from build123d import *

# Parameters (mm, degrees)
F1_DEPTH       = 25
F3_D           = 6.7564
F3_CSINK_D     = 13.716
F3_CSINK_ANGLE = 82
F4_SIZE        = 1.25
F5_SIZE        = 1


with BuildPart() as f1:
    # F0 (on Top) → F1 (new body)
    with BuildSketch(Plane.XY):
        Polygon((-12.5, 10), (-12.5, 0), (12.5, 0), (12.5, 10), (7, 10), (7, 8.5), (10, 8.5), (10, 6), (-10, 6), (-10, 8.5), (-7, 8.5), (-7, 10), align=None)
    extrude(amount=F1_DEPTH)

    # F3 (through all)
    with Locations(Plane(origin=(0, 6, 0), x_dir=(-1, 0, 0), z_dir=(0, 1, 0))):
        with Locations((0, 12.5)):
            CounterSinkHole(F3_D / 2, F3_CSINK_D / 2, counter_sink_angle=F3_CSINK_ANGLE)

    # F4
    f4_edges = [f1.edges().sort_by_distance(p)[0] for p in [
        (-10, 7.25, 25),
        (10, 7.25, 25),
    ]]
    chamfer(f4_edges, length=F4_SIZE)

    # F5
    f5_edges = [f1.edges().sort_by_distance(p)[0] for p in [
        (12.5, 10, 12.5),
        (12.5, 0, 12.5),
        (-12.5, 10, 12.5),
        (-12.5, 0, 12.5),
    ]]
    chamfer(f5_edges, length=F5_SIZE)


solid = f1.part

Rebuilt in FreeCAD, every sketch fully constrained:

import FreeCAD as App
import Part
import Sketcher

V = App.Vector


def edges_at(feature, points):
    """Names of the edges that pass closest to the given points."""
    edges = feature.Shape.Edges
    near = lambda p: min(range(len(edges)), key=lambda i: edges[i].distToShape(Part.Vertex(*p))[0])
    return sorted({f"Edge{near(p) + 1}" for p in points})

doc = App.newDocument("Part")
body = doc.addObject("PartDesign::Body", "Body")

sketch1 = body.newObject("Sketcher::SketchObject", "Sketch")
sketch1.AttachmentSupport = (doc.getObject("XY_Plane"), [""])
sketch1.MapMode = "FlatFace"
sketch1.addGeometry([
    Part.LineSegment(V(-12.5, 10, 0), V(-12.5, 0, 0)),
    Part.LineSegment(V(-12.5, 0, 0), V(12.5, 0, 0)),
    Part.LineSegment(V(12.5, 0, 0), V(12.5, 10, 0)),
    Part.LineSegment(V(12.5, 10, 0), V(7, 10, 0)),
    Part.LineSegment(V(7, 10, 0), V(7, 8.5, 0)),
    Part.LineSegment(V(7, 8.5, 0), V(10, 8.5, 0)),
    Part.LineSegment(V(10, 8.5, 0), V(10, 6, 0)),
    Part.LineSegment(V(10, 6, 0), V(-10, 6, 0)),
    Part.LineSegment(V(-10, 6, 0), V(-10, 8.5, 0)),
    Part.LineSegment(V(-10, 8.5, 0), V(-7, 8.5, 0)),
    Part.LineSegment(V(-7, 8.5, 0), V(-7, 10, 0)),
    Part.LineSegment(V(-7, 10, 0), V(-12.5, 10, 0)),
], False)
sketch1.addConstraint([
    Sketcher.Constraint("Coincident", 0, 2, 1, 1),
    Sketcher.Constraint("Coincident", 1, 2, 2, 1),
    Sketcher.Constraint("Coincident", 2, 2, 3, 1),
    Sketcher.Constraint("Coincident", 3, 2, 4, 1),
    Sketcher.Constraint("Coincident", 4, 2, 5, 1),
    Sketcher.Constraint("Coincident", 5, 2, 6, 1),
    Sketcher.Constraint("Coincident", 6, 2, 7, 1),
    Sketcher.Constraint("Coincident", 7, 2, 8, 1),
    Sketcher.Constraint("Coincident", 8, 2, 9, 1),
    Sketcher.Constraint("Coincident", 9, 2, 10, 1),
    Sketcher.Constraint("Coincident", 10, 2, 11, 1),
    Sketcher.Constraint("Coincident", 11, 2, 0, 1),
    Sketcher.Constraint("Vertical", 0),
    Sketcher.Constraint("Horizontal", 1),
    Sketcher.Constraint("Vertical", 2),
    Sketcher.Constraint("Horizontal", 3),
    Sketcher.Constraint("Vertical", 4),
    Sketcher.Constraint("Horizontal", 5),
    Sketcher.Constraint("Vertical", 6),
    Sketcher.Constraint("Horizontal", 7),
    Sketcher.Constraint("Vertical", 8),
    Sketcher.Constraint("Horizontal", 9),
    Sketcher.Constraint("Vertical", 10),
    Sketcher.Constraint("Horizontal", 11),
    Sketcher.Constraint("Symmetric", 0, 2, 1, 2, -1, 1),
    Sketcher.Constraint("Symmetric", 5, 2, 8, 2, -2),
    Sketcher.Constraint("Symmetric", 3, 2, 10, 2, -2),
    Sketcher.Constraint("DistanceX", 1, 1, 1, 2, 25.0),
    Sketcher.Constraint("DistanceX", 5, 1, 5, 2, 3.0),
    Sketcher.Constraint("DistanceX", 7, 2, 7, 1, 20.0),
    Sketcher.Constraint("DistanceY", 0, 2, 0, 1, 10.0),
    Sketcher.Constraint("DistanceY", 4, 2, 4, 1, 1.5),
    Sketcher.Constraint("DistanceY", 6, 2, 6, 1, 2.5),
])
pad1 = body.newObject("PartDesign::Pad", "Pad")
pad1.Profile = sketch1
pad1.Length = 25

sketch2 = body.newObject("Sketcher::SketchObject", "Sketch001")
sketch2.AttachmentSupport = (doc.getObject("XZ_Plane"), [""])
sketch2.MapMode = "FlatFace"
sketch2.AttachmentOffset = App.Placement(V(0, 0, -6), App.Rotation())
sketch2.addGeometry(Part.Circle(V(0, 12.5, 0), V(0, 0, 1), 3.4), False)
sketch2.addConstraint([
    Sketcher.Constraint("PointOnObject", 0, 3, -2),
    Sketcher.Constraint("Diameter", 0, 6.7564),
    Sketcher.Constraint("DistanceY", -1, 1, 0, 3, 12.5),
])
doc.recompute()
hole = body.newObject("PartDesign::Hole", "Hole")
hole.Profile = sketch2
hole.ThreadType = "None"
hole.Diameter = 6.7564
hole.DepthType = "ThroughAll"
hole.HoleCutType = "Countersink"
hole.HoleCutDiameter = 13.716
hole.HoleCutCountersinkAngle = 82
hole.Reversed = True
doc.recompute()

chamfer = body.newObject("PartDesign::Chamfer", "Chamfer")
chamfer.Base = (hole, edges_at(hole, [(-10, 7.25, 25), (10, 7.25, 25)]))
chamfer.Size = 1.25
doc.recompute()

chamfer2 = body.newObject("PartDesign::Chamfer", "Chamfer001")
chamfer2.Base = (chamfer, edges_at(chamfer, [
    (12.5, 10, 12.5),
    (12.5, 0, 12.5),
    (-12.5, 10, 12.5),
    (-12.5, 0, 12.5),
]))
chamfer2.Size = 1

doc.recompute()
